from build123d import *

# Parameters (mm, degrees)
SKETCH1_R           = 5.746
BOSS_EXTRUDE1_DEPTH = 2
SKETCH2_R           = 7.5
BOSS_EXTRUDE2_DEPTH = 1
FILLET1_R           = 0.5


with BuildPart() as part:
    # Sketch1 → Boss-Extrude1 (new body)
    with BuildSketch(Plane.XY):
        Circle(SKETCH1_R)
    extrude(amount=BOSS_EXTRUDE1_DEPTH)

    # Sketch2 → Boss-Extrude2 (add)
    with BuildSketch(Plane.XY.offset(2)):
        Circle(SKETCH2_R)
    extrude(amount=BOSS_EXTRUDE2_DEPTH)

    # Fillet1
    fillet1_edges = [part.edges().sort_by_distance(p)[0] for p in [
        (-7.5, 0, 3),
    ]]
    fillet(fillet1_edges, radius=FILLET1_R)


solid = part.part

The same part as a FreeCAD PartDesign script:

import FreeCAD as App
import Part
import Sketcher

V = App.Vector


def edges_at(feature, points):
    """Names of the edges that pass closest to the given points."""
    edges = feature.Shape.Edges
    near = lambda p: min(range(len(edges)), key=lambda i: edges[i].distToShape(Part.Vertex(*p))[0])
    return sorted({f"Edge{near(p) + 1}" for p in points})

doc = App.newDocument("Part")
body = doc.addObject("PartDesign::Body", "Body")

# Sketch on XY plane
sketch1 = body.newObject("Sketcher::SketchObject", "Sketch")
sketch1.AttachmentSupport = (doc.getObject("XY_Plane"), [""])
sketch1.MapMode = "FlatFace"
sketch1.addGeometry(Part.Circle(V(0, 0, 0), V(0, 0, 1), 6), False)
sketch1.addConstraint(Sketcher.Constraint("Coincident", 0, 3, -1, 1))
sketch1.addConstraint(Sketcher.Constraint("Diameter", 0, 11.492))
pad1 = body.newObject("PartDesign::Pad", "Pad")
pad1.Profile = sketch1
pad1.Length = 2

# Sketch on XY plane
sketch2 = body.newObject("Sketcher::SketchObject", "Sketch001")
sketch2.AttachmentSupport = (doc.getObject("XY_Plane"), [""])
sketch2.MapMode = "FlatFace"
sketch2.AttachmentOffset = App.Placement(V(0, 0, 2), App.Rotation())
sketch2.addGeometry(Part.Circle(V(0, 0, 0), V(0, 0, 1), 8), False)
sketch2.addConstraint(Sketcher.Constraint("Coincident", 0, 3, -1, 1))
sketch2.addConstraint(Sketcher.Constraint("Diameter", 0, 15.0))
pad2 = body.newObject("PartDesign::Pad", "Pad001")
pad2.Profile = sketch2
pad2.Length = 1
doc.recompute()

fillet = body.newObject("PartDesign::Fillet", "Fillet")
fillet.Base = (pad2, edges_at(pad2, [(-7.5, 0, 3)]))
fillet.Radius = 0.5

doc.recompute()
